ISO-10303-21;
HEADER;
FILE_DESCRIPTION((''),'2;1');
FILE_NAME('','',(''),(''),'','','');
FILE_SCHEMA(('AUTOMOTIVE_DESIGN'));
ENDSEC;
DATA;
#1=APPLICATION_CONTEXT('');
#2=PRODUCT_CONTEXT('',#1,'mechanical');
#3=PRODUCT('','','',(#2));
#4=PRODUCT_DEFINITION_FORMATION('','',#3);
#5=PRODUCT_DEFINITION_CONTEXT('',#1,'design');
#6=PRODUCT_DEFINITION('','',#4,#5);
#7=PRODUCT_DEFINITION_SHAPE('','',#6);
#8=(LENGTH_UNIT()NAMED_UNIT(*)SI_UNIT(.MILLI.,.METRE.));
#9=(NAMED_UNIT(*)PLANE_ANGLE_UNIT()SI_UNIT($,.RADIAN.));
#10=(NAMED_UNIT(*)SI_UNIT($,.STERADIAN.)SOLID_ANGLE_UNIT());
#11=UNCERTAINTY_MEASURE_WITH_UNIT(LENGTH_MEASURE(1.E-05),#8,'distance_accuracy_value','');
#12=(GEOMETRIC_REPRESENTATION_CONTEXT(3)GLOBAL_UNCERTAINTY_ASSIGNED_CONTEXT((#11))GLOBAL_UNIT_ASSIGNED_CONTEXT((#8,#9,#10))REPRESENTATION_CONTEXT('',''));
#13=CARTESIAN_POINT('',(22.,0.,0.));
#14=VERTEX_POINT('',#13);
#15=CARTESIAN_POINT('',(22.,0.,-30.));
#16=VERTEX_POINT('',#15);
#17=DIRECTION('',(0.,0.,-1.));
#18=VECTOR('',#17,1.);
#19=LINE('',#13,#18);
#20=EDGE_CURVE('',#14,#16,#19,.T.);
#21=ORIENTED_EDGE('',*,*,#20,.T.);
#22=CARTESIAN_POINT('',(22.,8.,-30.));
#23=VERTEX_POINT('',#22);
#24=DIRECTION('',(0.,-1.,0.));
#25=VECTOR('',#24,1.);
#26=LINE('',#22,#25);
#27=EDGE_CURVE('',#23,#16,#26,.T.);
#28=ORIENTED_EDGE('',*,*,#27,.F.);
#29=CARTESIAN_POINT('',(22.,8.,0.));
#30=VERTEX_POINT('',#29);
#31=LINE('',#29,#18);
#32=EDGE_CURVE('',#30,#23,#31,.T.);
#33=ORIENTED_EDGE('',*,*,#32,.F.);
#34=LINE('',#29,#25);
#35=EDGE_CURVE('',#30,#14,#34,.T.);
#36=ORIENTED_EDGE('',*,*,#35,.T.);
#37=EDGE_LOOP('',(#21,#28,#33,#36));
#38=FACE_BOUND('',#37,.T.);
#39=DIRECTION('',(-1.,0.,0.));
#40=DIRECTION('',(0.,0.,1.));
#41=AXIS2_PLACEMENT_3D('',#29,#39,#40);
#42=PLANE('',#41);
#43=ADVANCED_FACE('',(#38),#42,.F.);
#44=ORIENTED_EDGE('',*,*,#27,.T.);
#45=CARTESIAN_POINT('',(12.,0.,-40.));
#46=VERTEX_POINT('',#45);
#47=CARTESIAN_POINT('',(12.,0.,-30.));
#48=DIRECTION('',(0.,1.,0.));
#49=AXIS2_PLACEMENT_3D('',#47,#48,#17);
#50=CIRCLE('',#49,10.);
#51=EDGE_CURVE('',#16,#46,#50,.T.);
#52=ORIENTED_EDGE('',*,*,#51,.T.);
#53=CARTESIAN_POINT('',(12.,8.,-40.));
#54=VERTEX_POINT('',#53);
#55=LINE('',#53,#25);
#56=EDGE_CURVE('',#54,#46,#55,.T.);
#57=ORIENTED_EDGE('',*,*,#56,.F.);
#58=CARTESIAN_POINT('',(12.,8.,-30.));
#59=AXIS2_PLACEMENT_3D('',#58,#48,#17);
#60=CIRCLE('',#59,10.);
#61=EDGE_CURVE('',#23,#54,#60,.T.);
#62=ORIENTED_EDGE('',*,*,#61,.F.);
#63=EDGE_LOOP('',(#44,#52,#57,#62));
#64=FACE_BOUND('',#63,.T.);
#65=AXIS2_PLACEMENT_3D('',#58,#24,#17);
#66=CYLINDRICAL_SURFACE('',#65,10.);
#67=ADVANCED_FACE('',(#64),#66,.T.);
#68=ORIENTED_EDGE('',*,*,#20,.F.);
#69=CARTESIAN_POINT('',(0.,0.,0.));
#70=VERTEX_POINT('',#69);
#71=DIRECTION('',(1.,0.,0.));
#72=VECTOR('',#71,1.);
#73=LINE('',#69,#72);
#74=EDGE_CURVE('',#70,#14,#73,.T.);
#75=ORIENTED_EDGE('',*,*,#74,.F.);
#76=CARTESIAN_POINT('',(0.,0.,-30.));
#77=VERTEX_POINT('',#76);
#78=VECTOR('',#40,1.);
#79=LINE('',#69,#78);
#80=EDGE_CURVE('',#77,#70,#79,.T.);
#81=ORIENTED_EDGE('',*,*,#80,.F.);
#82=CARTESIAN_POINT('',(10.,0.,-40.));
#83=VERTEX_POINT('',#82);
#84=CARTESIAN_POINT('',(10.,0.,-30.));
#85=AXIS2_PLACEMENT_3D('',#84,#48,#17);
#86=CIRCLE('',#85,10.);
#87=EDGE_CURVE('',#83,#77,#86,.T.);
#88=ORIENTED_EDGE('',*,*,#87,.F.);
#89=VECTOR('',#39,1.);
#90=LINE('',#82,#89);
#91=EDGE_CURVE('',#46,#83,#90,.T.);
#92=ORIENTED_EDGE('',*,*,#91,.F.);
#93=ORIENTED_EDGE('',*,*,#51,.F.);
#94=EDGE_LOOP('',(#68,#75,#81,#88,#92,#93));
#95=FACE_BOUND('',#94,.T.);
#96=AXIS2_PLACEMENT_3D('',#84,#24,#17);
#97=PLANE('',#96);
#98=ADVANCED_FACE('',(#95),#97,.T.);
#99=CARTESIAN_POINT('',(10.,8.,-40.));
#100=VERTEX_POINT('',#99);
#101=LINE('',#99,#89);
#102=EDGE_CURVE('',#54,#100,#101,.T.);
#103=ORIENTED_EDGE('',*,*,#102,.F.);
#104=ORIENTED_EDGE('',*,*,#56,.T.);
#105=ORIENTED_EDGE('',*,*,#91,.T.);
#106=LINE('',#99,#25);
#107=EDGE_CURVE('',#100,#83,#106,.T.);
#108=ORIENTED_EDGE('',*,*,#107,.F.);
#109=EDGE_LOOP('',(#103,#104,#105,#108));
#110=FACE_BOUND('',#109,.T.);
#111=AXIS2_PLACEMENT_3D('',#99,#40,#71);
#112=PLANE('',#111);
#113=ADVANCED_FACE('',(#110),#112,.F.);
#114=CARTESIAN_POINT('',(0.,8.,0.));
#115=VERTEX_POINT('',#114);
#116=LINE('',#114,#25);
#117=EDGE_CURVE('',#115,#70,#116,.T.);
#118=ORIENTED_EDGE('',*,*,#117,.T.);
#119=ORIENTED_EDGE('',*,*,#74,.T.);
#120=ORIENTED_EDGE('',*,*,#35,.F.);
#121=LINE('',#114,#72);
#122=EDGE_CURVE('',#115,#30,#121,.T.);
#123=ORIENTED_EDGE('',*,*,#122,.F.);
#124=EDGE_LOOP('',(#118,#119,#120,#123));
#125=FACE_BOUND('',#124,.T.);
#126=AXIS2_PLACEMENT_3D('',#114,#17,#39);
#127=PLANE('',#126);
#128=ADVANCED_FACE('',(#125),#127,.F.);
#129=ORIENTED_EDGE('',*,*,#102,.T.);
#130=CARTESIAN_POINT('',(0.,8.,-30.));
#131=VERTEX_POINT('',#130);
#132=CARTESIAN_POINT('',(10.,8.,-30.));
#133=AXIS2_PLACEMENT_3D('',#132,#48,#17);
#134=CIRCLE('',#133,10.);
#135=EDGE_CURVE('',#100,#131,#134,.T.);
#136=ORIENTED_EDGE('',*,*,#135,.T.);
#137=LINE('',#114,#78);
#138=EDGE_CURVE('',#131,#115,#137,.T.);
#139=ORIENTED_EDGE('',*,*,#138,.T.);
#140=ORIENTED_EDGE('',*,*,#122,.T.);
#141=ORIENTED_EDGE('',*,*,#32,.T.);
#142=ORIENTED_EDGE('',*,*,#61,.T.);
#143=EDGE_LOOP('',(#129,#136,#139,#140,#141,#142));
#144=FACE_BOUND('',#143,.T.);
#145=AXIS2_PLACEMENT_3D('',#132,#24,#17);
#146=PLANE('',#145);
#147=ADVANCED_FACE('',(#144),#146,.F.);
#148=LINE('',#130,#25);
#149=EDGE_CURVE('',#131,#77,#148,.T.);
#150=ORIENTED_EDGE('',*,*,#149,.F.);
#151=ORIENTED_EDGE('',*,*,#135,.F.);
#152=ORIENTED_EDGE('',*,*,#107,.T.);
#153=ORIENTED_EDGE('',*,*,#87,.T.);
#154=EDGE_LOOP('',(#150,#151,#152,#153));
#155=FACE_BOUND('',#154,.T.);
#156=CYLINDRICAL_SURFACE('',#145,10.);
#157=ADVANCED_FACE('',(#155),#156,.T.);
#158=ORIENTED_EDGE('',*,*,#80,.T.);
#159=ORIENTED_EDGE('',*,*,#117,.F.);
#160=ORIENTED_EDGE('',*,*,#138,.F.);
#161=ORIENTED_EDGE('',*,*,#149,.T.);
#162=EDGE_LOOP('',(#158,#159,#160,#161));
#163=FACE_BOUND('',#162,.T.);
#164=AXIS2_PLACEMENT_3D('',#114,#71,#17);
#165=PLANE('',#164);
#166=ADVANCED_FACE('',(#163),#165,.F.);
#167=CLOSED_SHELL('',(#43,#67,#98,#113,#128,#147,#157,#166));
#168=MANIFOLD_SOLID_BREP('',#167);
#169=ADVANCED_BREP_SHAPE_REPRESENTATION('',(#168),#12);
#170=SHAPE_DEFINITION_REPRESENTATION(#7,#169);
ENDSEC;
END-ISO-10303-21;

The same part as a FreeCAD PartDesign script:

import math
import FreeCAD as App
import Part
import Sketcher
from FreeCAD import Vector
Q = App.Units.Quantity

doc = App.newDocument("Part")
body = doc.addObject("PartDesign::Body", "Body")

# Sketch on XZ plane
sketch1 = body.newObject("Sketcher::SketchObject", "Sketch")
sketch1.AttachmentSupport = (doc.getObject("XZ_Plane"), [""])
sketch1.MapMode = "FlatFace"
sketch1.addGeometry([
    Part.LineSegment(Vector(0, 0, 0), Vector(22, 0, 0)),  # 0
    Part.LineSegment(Vector(22, 0, 0), Vector(22, -30, 0)),  # 1
    Part.ArcOfCircle(Part.Circle(Vector(12, -30, 0), Vector(0, 0, 1), 10), math.radians(-90), math.radians(0)),  # 2
    Part.LineSegment(Vector(12, -40, 0), Vector(10, -40, 0)),  # 3
    Part.ArcOfCircle(Part.Circle(Vector(10, -30, 0), Vector(0, 0, 1), 10), math.radians(180), math.radians(270)),  # 4
    Part.LineSegment(Vector(0, -30, 0), Vector(0, 0, 0)),  # 5
], False)
sketch1.addConstraint([
    Sketcher.Constraint("Coincident", 0, 2, 1, 1),
    Sketcher.Constraint("Tangent", 1, 2, 2, 2),
    Sketcher.Constraint("Tangent", 2, 1, 3, 1),
    Sketcher.Constraint("Tangent", 3, 2, 4, 2),
    Sketcher.Constraint("Tangent", 4, 1, 5, 1),
    Sketcher.Constraint("Coincident", 5, 2, 0, 1),
    Sketcher.Constraint("Horizontal", 0),
    Sketcher.Constraint("Vertical", 1),
    Sketcher.Constraint("Horizontal", 3),
    Sketcher.Constraint("Vertical", 5),
    Sketcher.Constraint("Coincident", 5, 2, -1, 1),
    Sketcher.Constraint("Equal", 2, 4),
    Sketcher.Constraint("Radius", 2, Q("10 mm")),
    Sketcher.Constraint("DistanceX", 0, 1, 0, 2, Q("22 mm")),
    Sketcher.Constraint("DistanceY", 1, 2, 1, 1, Q("30 mm")),
])
pad1 = body.newObject("PartDesign::Pad", "Pad")
pad1.Profile = sketch1
pad1.Length = 8
pad1.Reversed = True

doc.recompute()
